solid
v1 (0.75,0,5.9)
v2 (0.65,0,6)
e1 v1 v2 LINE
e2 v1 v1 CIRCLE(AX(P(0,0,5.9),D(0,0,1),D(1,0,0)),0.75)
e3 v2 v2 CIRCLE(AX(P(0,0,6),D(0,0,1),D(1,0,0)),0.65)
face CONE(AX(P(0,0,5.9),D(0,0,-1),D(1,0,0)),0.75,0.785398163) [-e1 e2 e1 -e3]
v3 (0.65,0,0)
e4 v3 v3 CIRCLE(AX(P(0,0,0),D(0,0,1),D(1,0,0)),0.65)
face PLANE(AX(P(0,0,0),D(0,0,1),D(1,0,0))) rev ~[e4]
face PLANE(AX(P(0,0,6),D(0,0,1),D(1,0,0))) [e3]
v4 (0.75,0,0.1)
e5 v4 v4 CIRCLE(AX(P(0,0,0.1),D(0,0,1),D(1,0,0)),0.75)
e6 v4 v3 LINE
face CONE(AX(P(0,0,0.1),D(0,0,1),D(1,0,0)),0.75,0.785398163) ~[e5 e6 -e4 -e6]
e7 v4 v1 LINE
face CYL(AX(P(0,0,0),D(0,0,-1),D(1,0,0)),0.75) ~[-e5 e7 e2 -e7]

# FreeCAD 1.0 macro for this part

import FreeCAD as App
import Part
import Sketcher
Q = App.Units.Quantity


def edges_at(feature, points):
    """Names of the edges that pass closest to the given points."""
    edges = feature.Shape.Edges
    near = lambda p: min(range(len(edges)), key=lambda i: edges[i].distToShape(Part.Vertex(*p))[0])
    return sorted({f"Edge{near(p) + 1}" for p in points})

doc = App.newDocument("Part")
body = doc.addObject("PartDesign::Body", "Body")

# Sketch on XY plane
sketch1 = doc.addObject("Sketcher::SketchObject", "Sketch")
body.addObject(sketch1)
sketch1.AttachmentSupport = (doc.XY_Plane, [""])
sketch1.MapMode = "FlatFace"
sketch1.addGeometry(Part.Circle(App.Vector(0, 0, 0), App.Vector(0, 0, 1), 0.8), False)
sketch1.addConstraint([
    Sketcher.Constraint("Coincident", 0, 3, -1, 1),
    Sketcher.Constraint("Diameter", 0, Q("1.5 mm")),
])
pad1 = doc.addObject("PartDesign::Pad", "Pad")
body.addObject(pad1)
pad1.Profile = sketch1
pad1.Length = 6
doc.recompute()

chamfer = doc.addObject("PartDesign::Chamfer", "Chamfer")
body.addObject(chamfer)
chamfer.Base = (pad1, edges_at(pad1, [(-0.75, 0, 6), (-0.75, 0, 0)]))
chamfer.Size = 0.1

doc.recompute()
